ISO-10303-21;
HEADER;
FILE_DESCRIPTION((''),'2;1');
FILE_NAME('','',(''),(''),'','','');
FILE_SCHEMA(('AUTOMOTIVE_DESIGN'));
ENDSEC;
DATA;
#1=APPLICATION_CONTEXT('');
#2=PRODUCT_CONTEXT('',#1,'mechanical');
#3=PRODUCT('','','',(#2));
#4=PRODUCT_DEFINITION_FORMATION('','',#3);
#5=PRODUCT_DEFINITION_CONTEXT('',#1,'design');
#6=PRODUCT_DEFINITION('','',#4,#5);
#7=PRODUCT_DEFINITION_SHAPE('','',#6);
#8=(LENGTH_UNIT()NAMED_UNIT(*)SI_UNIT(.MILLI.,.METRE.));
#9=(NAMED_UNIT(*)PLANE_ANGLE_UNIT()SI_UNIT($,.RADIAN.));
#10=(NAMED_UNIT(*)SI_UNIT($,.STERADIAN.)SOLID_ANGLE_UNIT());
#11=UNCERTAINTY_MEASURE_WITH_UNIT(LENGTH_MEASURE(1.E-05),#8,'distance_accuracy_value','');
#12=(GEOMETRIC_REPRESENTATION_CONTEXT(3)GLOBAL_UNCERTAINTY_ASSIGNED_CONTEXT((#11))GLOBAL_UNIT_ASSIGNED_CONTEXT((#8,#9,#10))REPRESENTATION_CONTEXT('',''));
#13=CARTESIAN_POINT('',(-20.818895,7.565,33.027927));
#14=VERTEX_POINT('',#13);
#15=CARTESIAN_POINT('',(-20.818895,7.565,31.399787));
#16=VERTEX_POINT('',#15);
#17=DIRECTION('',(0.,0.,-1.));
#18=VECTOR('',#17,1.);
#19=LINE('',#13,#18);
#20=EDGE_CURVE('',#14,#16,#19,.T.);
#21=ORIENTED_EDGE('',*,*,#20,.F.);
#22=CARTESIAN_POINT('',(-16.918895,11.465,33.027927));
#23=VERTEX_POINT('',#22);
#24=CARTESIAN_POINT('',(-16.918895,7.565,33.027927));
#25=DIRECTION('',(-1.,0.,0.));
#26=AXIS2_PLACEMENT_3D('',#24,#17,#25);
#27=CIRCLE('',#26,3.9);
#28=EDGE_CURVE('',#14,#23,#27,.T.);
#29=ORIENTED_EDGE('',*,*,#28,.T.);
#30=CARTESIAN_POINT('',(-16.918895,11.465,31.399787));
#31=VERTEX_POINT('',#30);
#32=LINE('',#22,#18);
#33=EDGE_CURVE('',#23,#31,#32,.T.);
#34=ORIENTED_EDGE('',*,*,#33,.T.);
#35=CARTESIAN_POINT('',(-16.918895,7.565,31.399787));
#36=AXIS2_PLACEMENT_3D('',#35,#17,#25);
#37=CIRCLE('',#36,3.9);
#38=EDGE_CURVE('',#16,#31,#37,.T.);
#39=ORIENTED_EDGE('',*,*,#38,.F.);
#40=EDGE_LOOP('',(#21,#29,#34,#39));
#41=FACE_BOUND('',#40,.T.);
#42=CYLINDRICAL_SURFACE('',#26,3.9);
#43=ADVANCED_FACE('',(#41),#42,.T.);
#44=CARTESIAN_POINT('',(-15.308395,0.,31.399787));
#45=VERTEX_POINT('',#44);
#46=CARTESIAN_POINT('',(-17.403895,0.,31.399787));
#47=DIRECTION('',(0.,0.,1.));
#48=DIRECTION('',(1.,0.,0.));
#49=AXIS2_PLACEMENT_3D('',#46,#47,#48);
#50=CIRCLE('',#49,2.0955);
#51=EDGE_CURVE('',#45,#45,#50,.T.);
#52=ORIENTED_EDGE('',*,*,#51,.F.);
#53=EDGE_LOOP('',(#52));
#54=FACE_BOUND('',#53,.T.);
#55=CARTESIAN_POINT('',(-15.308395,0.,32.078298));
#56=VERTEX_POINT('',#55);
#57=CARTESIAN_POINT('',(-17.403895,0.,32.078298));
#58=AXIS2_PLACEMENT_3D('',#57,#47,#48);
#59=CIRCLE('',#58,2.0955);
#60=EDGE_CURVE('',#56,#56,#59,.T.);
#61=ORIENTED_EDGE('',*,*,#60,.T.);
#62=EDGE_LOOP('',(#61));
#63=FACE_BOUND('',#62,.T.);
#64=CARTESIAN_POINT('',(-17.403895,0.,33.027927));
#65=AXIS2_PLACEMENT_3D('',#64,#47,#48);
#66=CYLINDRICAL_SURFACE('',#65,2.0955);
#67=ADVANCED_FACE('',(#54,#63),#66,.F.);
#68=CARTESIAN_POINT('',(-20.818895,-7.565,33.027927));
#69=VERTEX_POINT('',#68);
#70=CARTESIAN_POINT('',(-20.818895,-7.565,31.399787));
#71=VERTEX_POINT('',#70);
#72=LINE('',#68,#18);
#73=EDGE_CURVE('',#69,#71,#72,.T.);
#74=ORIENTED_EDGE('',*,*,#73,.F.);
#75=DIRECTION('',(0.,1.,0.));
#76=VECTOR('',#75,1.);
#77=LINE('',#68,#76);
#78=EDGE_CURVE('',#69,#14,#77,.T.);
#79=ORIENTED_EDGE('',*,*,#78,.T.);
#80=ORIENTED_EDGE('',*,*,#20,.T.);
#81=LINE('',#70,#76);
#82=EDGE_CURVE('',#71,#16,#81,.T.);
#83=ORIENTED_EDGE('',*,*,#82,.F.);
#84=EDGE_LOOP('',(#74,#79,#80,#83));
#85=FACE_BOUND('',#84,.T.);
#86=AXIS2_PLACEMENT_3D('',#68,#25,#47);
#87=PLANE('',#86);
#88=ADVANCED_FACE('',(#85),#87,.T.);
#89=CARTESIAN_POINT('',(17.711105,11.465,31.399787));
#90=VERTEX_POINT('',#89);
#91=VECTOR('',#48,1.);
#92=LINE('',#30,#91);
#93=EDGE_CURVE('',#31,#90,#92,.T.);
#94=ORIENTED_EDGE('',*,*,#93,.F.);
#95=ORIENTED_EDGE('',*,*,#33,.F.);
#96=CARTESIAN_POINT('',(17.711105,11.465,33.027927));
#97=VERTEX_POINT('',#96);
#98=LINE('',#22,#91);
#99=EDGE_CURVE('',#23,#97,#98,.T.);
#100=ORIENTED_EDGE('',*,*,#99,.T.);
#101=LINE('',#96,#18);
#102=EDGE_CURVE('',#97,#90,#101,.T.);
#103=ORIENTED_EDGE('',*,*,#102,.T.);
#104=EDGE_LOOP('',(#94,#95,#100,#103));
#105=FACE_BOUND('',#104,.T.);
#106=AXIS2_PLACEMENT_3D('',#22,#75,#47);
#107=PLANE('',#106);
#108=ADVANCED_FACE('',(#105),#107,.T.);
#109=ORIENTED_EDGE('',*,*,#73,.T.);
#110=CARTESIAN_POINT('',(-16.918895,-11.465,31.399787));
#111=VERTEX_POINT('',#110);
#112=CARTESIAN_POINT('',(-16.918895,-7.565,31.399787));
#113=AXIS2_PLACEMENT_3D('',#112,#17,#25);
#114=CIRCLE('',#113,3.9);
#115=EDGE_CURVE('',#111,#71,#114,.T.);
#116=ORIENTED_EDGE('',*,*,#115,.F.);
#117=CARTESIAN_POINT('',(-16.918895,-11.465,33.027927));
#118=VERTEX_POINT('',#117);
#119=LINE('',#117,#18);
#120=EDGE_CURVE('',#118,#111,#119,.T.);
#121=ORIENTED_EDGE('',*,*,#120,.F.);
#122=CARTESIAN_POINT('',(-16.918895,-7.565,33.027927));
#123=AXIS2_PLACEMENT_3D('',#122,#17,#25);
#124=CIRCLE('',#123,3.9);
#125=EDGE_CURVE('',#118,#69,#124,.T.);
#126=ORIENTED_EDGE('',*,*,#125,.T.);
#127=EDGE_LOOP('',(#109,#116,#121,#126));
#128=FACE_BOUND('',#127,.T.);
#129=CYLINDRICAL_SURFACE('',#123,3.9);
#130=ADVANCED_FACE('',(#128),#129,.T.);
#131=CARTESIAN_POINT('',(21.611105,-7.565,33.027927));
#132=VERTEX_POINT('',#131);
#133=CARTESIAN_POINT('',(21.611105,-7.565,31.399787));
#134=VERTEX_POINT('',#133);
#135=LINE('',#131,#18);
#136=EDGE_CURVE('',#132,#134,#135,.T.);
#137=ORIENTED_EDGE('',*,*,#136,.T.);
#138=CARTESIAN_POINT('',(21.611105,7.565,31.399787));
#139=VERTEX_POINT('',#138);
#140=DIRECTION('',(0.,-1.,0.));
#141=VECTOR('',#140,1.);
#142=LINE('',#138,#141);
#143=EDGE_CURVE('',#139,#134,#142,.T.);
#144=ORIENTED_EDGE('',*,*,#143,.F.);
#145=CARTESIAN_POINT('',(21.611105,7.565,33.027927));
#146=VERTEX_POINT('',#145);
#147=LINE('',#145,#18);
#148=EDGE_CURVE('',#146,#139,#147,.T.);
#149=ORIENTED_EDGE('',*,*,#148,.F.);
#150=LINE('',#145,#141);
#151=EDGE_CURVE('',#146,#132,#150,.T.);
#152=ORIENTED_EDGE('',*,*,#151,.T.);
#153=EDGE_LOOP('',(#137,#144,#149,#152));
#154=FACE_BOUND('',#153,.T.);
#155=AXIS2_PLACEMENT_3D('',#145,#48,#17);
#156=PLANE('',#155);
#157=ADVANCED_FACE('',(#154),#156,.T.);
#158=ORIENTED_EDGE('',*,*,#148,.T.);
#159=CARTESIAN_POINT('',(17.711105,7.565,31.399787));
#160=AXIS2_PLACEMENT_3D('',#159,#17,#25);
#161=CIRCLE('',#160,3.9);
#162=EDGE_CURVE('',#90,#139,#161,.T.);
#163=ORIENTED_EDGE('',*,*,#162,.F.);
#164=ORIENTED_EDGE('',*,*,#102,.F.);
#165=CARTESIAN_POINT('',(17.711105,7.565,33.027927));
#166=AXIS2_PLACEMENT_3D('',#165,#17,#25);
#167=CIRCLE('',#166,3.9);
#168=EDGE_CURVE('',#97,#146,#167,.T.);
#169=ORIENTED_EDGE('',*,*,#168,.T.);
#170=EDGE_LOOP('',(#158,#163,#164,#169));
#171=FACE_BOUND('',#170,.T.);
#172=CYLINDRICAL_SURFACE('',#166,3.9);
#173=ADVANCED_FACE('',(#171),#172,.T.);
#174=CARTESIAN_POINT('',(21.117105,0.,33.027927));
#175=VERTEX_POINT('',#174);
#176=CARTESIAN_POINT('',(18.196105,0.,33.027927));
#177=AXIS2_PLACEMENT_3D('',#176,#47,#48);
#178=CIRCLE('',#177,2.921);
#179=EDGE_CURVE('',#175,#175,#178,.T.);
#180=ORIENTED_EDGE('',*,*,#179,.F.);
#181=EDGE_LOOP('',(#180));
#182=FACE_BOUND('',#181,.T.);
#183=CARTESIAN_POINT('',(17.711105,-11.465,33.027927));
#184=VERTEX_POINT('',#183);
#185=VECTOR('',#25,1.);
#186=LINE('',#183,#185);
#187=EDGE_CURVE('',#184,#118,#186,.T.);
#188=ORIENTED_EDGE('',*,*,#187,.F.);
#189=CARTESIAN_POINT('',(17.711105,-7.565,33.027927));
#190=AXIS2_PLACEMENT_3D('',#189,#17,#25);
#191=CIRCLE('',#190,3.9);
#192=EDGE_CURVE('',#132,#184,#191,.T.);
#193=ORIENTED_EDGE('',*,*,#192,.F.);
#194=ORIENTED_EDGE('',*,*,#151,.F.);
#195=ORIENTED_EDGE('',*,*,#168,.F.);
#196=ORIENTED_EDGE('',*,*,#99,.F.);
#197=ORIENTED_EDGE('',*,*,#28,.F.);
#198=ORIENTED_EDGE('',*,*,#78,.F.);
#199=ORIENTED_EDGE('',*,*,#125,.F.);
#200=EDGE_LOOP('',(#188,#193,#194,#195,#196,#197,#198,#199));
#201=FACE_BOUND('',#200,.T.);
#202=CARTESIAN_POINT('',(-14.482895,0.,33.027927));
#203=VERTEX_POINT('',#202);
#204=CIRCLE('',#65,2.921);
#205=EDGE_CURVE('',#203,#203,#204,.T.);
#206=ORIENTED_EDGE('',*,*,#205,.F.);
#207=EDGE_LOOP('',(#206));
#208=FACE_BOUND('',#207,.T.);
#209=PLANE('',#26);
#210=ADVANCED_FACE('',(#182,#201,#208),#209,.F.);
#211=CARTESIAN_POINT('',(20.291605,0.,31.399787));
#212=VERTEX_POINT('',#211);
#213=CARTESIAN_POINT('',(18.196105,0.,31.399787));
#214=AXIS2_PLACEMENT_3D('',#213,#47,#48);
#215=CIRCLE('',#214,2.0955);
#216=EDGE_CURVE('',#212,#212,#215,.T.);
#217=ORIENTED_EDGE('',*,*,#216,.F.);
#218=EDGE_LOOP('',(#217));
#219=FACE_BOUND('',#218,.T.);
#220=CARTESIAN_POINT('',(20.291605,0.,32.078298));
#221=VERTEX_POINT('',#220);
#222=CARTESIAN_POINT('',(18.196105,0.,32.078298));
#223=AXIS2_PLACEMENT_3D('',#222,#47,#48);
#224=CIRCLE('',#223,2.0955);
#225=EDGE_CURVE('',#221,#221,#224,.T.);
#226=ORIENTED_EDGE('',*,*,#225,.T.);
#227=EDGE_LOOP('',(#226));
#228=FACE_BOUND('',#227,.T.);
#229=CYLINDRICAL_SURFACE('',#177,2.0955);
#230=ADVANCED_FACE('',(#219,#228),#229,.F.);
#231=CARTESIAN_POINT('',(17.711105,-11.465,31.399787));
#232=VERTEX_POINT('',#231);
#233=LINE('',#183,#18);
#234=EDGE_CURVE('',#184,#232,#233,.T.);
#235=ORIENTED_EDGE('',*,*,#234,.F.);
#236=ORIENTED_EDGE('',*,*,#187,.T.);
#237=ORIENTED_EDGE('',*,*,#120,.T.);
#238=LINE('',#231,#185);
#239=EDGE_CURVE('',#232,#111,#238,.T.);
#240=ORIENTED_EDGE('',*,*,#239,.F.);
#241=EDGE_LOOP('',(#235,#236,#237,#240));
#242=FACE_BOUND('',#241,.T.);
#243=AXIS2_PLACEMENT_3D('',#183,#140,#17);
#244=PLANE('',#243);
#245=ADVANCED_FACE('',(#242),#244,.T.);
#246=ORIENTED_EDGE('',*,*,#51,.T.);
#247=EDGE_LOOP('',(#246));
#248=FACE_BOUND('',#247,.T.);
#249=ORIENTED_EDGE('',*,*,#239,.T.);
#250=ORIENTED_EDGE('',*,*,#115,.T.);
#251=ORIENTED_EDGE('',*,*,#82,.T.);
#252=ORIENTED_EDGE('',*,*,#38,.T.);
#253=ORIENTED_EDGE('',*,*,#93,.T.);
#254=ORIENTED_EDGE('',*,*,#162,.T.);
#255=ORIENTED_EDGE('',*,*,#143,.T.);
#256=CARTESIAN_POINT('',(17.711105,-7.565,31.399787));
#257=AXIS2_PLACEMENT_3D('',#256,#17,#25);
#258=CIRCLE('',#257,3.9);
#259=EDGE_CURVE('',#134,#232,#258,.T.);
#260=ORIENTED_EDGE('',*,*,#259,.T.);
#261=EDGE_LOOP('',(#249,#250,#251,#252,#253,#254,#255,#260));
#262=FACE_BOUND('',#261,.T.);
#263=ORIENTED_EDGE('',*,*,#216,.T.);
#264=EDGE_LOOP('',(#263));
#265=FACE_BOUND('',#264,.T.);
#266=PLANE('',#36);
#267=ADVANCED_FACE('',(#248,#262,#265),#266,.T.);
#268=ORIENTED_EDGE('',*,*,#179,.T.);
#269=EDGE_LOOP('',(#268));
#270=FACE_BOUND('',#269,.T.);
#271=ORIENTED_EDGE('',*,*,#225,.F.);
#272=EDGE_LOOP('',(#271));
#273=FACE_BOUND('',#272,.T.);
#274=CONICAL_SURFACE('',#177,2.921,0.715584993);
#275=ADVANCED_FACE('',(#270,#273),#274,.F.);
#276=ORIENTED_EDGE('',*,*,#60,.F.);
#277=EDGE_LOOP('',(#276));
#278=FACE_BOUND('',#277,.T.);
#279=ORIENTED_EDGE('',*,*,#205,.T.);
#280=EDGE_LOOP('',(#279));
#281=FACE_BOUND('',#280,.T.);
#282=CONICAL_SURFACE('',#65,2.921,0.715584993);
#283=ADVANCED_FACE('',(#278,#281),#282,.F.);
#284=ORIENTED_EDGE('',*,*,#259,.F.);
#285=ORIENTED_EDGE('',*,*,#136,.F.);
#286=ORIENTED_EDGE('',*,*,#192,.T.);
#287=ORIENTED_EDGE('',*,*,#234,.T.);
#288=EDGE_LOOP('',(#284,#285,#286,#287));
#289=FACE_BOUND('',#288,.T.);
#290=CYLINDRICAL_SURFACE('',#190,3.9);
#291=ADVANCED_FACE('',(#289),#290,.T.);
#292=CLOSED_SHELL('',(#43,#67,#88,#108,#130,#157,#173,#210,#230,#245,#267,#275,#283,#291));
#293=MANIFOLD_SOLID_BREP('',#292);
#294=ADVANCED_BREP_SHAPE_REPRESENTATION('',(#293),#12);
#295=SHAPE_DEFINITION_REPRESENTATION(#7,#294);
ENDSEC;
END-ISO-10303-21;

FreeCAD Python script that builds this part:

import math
import FreeCAD as App
import Part
import Sketcher

V = App.Vector
Q = App.Units.Quantity


def add_polygon(sketch, points):
    """Adds a closed chain of lines whose ends are joined by coincident constraints."""
    first, n = sketch.GeometryCount, len(points)
    for a, b in zip(points, points[1:] + points[:1]):
        sketch.addGeometry(Part.LineSegment(App.Vector(*a, 0), App.Vector(*b, 0)), False)
    for i in range(n):
        sketch.addConstraint(Sketcher.Constraint("Coincident", first + i, 2, first + (i + 1) % n, 1))

doc = App.newDocument("Part")
body = doc.addObject("PartDesign::Body", "Body")

sketch1 = doc.addObject("Sketcher::SketchObject", "Sketch")
body.addObject(sketch1)
sketch1.AttachmentSupport = (doc.XY_Plane, [""])
sketch1.MapMode = "FlatFace"
sketch1.AttachmentOffset = App.Placement(V(0, 0, 31.399787), App.Rotation())
sketch1.addGeometry(Part.LineSegment(V(-16.9, 11.5, 0), V(17.7, 11.5, 0)), False)
sketch1.addGeometry(Part.ArcOfCircle(Part.Circle(V(17.7, 7.6, 0), V(0, 0, 1), 3.9), math.radians(0), math.radians(90)), False)
sketch1.addGeometry(Part.LineSegment(V(21.6, 7.6, 0), V(21.6, -7.6, 0)), False)
sketch1.addGeometry(Part.ArcOfCircle(Part.Circle(V(17.7, -7.6, 0), V(0, 0, 1), 3.9), math.radians(-90), math.radians(0)), False)
sketch1.addGeometry(Part.LineSegment(V(17.7, -11.5, 0), V(-16.9, -11.5, 0)), False)
sketch1.addGeometry(Part.ArcOfCircle(Part.Circle(V(-16.9, -7.6, 0), V(0, 0, 1), 3.9), math.radians(180), math.radians(270)), False)
sketch1.addGeometry(Part.LineSegment(V(-20.8, -7.6, 0), V(-20.8, 7.6, 0)), False)
sketch1.addGeometry(Part.ArcOfCircle(Part.Circle(V(-16.9, 7.6, 0), V(0, 0, 1), 3.9), math.radians(90), math.radians(180)), False)
sketch1.addConstraint(Sketcher.Constraint("Tangent", 0, 2, 1, 2))
sketch1.addConstraint(Sketcher.Constraint("Tangent", 1, 1, 2, 1))
sketch1.addConstraint(Sketcher.Constraint("Tangent", 2, 2, 3, 2))
sketch1.addConstraint(Sketcher.Constraint("Tangent", 3, 1, 4, 1))
sketch1.addConstraint(Sketcher.Constraint("Tangent", 4, 2, 5, 2))
sketch1.addConstraint(Sketcher.Constraint("Tangent", 5, 1, 6, 1))
sketch1.addConstraint(Sketcher.Constraint("Tangent", 6, 2, 7, 2))
sketch1.addConstraint(Sketcher.Constraint("Tangent", 7, 1, 0, 1))
sketch1.addConstraint(Sketcher.Constraint("Horizontal", 0))
sketch1.addConstraint(Sketcher.Constraint("Vertical", 2))
sketch1.addConstraint(Sketcher.Constraint("Horizontal", 4))
sketch1.addConstraint(Sketcher.Constraint("Vertical", 6))
sketch1.addConstraint(Sketcher.Constraint("Equal", 1, 3))
sketch1.addConstraint(Sketcher.Constraint("Equal", 3, 5))
sketch1.addConstraint(Sketcher.Constraint("Equal", 5, 7))
sketch1.addConstraint(Sketcher.Constraint("Radius", 1, 3.9))
sketch1.addConstraint(Sketcher.Constraint("DistanceX", 0, 1, 0, 2, 34.63))
sketch1.addConstraint(Sketcher.Constraint("DistanceY", 2, 2, 2, 1, 15.13))
sketch1.addConstraint(Sketcher.Constraint("DistanceY", -1, 1, 1, 3, 7.565))
sketch1.addConstraint(Sketcher.Constraint("DistanceX", -1, 1, 1, 3, 17.711105))
pad1 = doc.addObject("PartDesign::Pad", "Pad")
body.addObject(pad1)
pad1.Profile = sketch1
pad1.Length = 1.62814

sketch2 = doc.addObject("Sketcher::SketchObject", "Sketch001")
body.addObject(sketch2)
sketch2.AttachmentSupport = (doc.YZ_Plane, [""])
sketch2.MapMode = "FlatFace"
sketch2.AttachmentOffset = App.Placement(V(0, 0, -17.403895), App.Rotation())
add_polygon(sketch2, [(0, 31.4), (0, 33), (-2.9, 33), (-2.1, 32.1), (-2.1, 31.4)])
sketch2.addConstraint(Sketcher.Constraint("Vertical", 0))
sketch2.addConstraint(Sketcher.Constraint("Horizontal", 1))
sketch2.addConstraint(Sketcher.Constraint("Vertical", 3))
sketch2.addConstraint(Sketcher.Constraint("Horizontal", 4))
sketch2.addConstraint(Sketcher.Constraint("PointOnObject", 0, 2, -2))
sketch2.addConstraint(Sketcher.Constraint("Angle", 2, Q("-49 deg")))
sketch2.addConstraint(Sketcher.Constraint("DistanceX", 1, 2, 1, 1, 2.921))
sketch2.addConstraint(Sketcher.Constraint("DistanceX", 4, 1, 4, 2, 2.0955))
sketch2.addConstraint(Sketcher.Constraint("DistanceY", 0, 1, 0, 2, 1.62814))
sketch2.addConstraint(Sketcher.Constraint("DistanceY", -1, 1, 0, 2, 33.027927))
groove = doc.addObject("PartDesign::Groove", "Groove")
body.addObject(groove)
groove.Profile = sketch2
groove.ReferenceAxis = (sketch2, ["V_Axis"])
groove.Angle = 360
doc.recompute()

linearpattern = doc.addObject("PartDesign::LinearPattern", "LinearPattern")
body.addObject(linearpattern)
linearpattern.Originals = [groove]
linearpattern.Direction = (doc.X_Axis, [""])
linearpattern.Mode = "offset"
linearpattern.Offset = 35.6
linearpattern.Occurrences = 2
body.Tip = linearpattern

doc.recompute()
